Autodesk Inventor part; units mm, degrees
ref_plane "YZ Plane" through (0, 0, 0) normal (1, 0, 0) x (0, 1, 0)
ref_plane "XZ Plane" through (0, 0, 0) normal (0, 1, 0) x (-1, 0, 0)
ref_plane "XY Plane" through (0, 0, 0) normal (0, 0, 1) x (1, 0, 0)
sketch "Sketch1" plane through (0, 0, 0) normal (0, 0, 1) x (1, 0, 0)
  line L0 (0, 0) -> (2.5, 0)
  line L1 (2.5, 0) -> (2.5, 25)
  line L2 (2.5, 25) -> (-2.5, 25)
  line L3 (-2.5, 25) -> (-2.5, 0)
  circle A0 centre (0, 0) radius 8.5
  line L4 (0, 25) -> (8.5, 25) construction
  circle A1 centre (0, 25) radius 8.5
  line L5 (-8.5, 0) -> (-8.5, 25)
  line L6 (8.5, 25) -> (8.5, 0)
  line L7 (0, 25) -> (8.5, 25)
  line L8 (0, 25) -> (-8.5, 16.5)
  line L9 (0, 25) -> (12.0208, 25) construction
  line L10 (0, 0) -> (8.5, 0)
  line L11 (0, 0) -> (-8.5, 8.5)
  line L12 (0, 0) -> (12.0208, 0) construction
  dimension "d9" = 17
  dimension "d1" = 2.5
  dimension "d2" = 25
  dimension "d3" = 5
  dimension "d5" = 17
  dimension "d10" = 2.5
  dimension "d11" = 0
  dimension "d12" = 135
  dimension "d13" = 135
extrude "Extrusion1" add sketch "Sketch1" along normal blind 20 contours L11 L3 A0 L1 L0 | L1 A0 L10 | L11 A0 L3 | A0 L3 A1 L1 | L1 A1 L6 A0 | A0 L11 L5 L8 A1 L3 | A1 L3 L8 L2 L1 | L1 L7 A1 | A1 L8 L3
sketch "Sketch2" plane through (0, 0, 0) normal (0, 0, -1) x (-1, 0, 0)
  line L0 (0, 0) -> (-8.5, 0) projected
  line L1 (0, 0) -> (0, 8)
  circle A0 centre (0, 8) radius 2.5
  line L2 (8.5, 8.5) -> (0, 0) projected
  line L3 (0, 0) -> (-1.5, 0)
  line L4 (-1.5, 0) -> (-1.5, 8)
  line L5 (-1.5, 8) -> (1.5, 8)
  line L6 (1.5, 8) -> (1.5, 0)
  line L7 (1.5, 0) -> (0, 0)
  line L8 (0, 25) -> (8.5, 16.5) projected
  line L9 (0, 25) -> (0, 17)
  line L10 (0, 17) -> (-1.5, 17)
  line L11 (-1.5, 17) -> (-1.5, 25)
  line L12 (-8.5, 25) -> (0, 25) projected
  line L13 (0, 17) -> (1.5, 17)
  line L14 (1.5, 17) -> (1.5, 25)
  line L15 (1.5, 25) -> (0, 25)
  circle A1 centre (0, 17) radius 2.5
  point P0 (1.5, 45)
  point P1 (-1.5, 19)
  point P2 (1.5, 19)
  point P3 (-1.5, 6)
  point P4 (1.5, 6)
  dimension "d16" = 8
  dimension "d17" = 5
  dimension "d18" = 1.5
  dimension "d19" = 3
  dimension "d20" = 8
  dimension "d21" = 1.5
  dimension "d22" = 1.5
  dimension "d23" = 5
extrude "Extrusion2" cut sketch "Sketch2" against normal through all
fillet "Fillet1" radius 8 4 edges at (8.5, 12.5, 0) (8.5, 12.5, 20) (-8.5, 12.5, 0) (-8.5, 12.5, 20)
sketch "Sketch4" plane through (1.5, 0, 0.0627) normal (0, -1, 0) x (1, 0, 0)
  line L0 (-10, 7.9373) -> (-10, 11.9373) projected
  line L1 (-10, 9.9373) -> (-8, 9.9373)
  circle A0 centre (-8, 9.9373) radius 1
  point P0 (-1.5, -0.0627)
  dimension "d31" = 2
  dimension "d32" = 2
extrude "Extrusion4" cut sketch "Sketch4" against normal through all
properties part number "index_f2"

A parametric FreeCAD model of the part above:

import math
import FreeCAD as App
import Part
import Sketcher
from FreeCAD import Vector
Q = App.Units.Quantity


def edges_at(feature, points):
    """Names of the edges that pass closest to the given points."""
    edges = feature.Shape.Edges
    near = lambda p: min(range(len(edges)), key=lambda i: edges[i].distToShape(Part.Vertex(*p))[0])
    return sorted({f"Edge{near(p) + 1}" for p in points})


def add_polygon(sketch, points):
    """Adds a closed chain of lines whose ends are joined by coincident constraints."""
    first, n = sketch.GeometryCount, len(points)
    for a, b in zip(points, points[1:] + points[:1]):
        sketch.addGeometry(Part.LineSegment(App.Vector(*a, 0), App.Vector(*b, 0)), False)
    for i in range(n):
        sketch.addConstraint(Sketcher.Constraint("Coincident", first + i, 2, first + (i + 1) % n, 1))

doc = App.newDocument("Part")
body = doc.addObject("PartDesign::Body", "Body")

sketch1 = body.newObject("Sketcher::SketchObject", "Sketch")
sketch1.AttachmentSupport = (doc.getObject("XY_Plane"), [""])
sketch1.MapMode = "FlatFace"
add_polygon(sketch1, [(0, 0), (8, 0), (8, 25), (0, 25), (-8, 16), (-8, 8)])
sketch1.addConstraint([
    Sketcher.Constraint("Horizontal", 0),
    Sketcher.Constraint("Vertical", 1),
    Sketcher.Constraint("Horizontal", 2),
    Sketcher.Constraint("Vertical", 4),
    Sketcher.Constraint("Coincident", 5, 2, -1, 1),
    Sketcher.Constraint("PointOnObject", 2, 2, -2),
    Sketcher.Constraint("Perpendicular", 3, 5),
    Sketcher.Constraint("Equal", 3, 5),
    Sketcher.Constraint("DistanceY", 1, 1, 1, 2, Q("25 mm")),
    Sketcher.Constraint("DistanceX", 3, 2, 1, 2, Q("17 mm")),
    Sketcher.Constraint("DistanceY", 4, 2, 4, 1, Q("8 mm")),
])
pad1 = body.newObject("PartDesign::Pad", "Pad")
pad1.Profile = sketch1
pad1.Length = 20

sketch2 = body.newObject("Sketcher::SketchObject", "Sketch001")
sketch2.AttachmentSupport = (doc.getObject("XY_Plane"), [""])
sketch2.MapMode = "FlatFace"
sketch2.addGeometry([
    Part.LineSegment(Vector(1.5, 0, 0), Vector(-1.5, 0, 0)),
    Part.LineSegment(Vector(-1.5, 0, 0), Vector(-1.5, 6, 0)),
    Part.ArcOfCircle(Part.Circle(Vector(0, 8, 0), Vector(0, 0, 1), 2.5), math.radians(-53), math.radians(233)),
    Part.LineSegment(Vector(1.5, 6, 0), Vector(1.5, 0, 0)),
    Part.LineSegment(Vector(-1.5, 25, 0), Vector(1.5, 25, 0)),
    Part.LineSegment(Vector(1.5, 25, 0), Vector(1.5, 19, 0)),
    Part.ArcOfCircle(Part.Circle(Vector(0, 17, 0), Vector(0, 0, 1), 2.5), math.radians(127), math.radians(413)),
    Part.LineSegment(Vector(-1.5, 19, 0), Vector(-1.5, 25, 0)),
], False)
sketch2.addConstraint([
    Sketcher.Constraint("Coincident", 0, 2, 1, 1),
    Sketcher.Constraint("Coincident", 1, 2, 2, 2),
    Sketcher.Constraint("Coincident", 2, 1, 3, 1),
    Sketcher.Constraint("Coincident", 3, 2, 0, 1),
    Sketcher.Constraint("Coincident", 4, 2, 5, 1),
    Sketcher.Constraint("Coincident", 5, 2, 6, 2),
    Sketcher.Constraint("Coincident", 6, 1, 7, 1),
    Sketcher.Constraint("Coincident", 7, 2, 4, 1),
    Sketcher.Constraint("Horizontal", 0),
    Sketcher.Constraint("Vertical", 1),
    Sketcher.Constraint("Vertical", 3),
    Sketcher.Constraint("Horizontal", 4),
    Sketcher.Constraint("Vertical", 5),
    Sketcher.Constraint("Vertical", 7),
    Sketcher.Constraint("Equal", 2, 6),
    Sketcher.Constraint("Symmetric", 0, 2, 3, 2, -1, 1),
    Sketcher.Constraint("Symmetric", 5, 2, 6, 1, -2),
    Sketcher.Constraint("PointOnObject", 2, 3, -2),
    Sketcher.Constraint("Vertical", 3, 2, 4, 2),
    Sketcher.Constraint("Equal", 3, 5),
    Sketcher.Constraint("Radius", 2, Q("2.5 mm")),
    Sketcher.Constraint("DistanceX", 0, 2, 0, 1, Q("3 mm")),
    Sketcher.Constraint("DistanceY", -1, 1, 2, 3, Q("8 mm")),
    Sketcher.Constraint("DistanceY", -1, 1, 6, 3, Q("17 mm")),
])
pocket1 = body.newObject("PartDesign::Pocket", "Pocket")
pocket1.Profile = sketch2
pocket1.Type = "ThroughAll"
pocket1.Reversed = True
doc.recompute()

fillet = body.newObject("PartDesign::Fillet", "Fillet")
fillet.Base = (pocket1, edges_at(pocket1, [
    (8.5, 12.5, 0),
    (8.5, 12.5, 20),
    (-8.5, 12.5, 0),
    (-8.5, 12.5, 20),
]))
fillet.Radius = 8

sketch3 = body.newObject("Sketcher::SketchObject", "Sketch002")
sketch3.AttachmentSupport = (doc.getObject("XZ_Plane"), [""])
sketch3.MapMode = "FlatFace"
sketch3.addGeometry(Part.Circle(Vector(-6.5, 10, 0), Vector(0, 0, 1), 1), False)
sketch3.addConstraint([
    Sketcher.Constraint("Diameter", 0, Q("2 mm")),
    Sketcher.Constraint("DistanceY", -1, 1, 0, 3, Q("10 mm")),
    Sketcher.Constraint("DistanceX", 0, 3, -1, 1, Q("6.5 mm")),
])
pocket2 = body.newObject("PartDesign::Pocket", "Pocket001")
pocket2.Profile = sketch3
pocket2.Type = "ThroughAll"

doc.recompute()
